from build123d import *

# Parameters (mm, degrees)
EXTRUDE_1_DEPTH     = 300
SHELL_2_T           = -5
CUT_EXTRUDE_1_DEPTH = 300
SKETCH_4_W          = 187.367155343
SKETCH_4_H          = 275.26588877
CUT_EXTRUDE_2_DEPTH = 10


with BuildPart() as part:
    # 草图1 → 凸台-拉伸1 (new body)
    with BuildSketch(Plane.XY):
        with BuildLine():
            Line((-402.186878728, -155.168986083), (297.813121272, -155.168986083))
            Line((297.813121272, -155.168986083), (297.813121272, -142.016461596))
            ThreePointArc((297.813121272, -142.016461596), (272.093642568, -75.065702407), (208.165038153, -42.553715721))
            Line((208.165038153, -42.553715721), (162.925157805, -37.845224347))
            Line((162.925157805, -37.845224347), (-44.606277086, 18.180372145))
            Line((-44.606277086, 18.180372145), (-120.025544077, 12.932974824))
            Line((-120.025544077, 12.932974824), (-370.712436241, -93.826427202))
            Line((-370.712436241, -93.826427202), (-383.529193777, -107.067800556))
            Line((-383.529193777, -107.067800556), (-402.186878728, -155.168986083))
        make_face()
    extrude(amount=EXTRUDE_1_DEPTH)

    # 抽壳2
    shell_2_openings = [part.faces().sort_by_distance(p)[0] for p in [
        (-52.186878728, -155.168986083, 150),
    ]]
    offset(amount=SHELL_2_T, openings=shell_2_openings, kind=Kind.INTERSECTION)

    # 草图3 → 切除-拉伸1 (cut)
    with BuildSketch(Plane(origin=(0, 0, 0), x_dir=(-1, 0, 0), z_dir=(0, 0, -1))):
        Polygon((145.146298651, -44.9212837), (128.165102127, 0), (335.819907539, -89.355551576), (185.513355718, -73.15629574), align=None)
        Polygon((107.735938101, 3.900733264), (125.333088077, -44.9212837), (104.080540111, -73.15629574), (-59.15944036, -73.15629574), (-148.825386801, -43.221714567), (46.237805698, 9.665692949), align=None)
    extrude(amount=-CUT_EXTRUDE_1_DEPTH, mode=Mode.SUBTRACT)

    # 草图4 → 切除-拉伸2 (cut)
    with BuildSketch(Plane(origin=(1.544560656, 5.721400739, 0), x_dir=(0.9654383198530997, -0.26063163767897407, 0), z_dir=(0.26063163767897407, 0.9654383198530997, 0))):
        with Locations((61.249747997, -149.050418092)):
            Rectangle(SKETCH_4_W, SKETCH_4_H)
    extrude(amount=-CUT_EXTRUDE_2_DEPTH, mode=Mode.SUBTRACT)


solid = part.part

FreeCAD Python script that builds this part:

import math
import FreeCAD as App
import Part
import Sketcher
from FreeCAD import Vector
Q = App.Units.Quantity


def faces_at(feature, points):
    """Names of the faces that lie closest to the given points."""
    faces = feature.Shape.Faces
    near = lambda p: min(range(len(faces)), key=lambda i: faces[i].distToShape(Part.Vertex(*p))[0])
    return sorted({f"Face{near(p) + 1}" for p in points})

doc = App.newDocument("Part")
body = doc.addObject("PartDesign::Body", "Body")

sketch1 = body.newObject("Sketcher::SketchObject", "Sketch")
sketch1.AttachmentSupport = (doc.getObject("XY_Plane"), [""])
sketch1.MapMode = "FlatFace"
sketch1.addGeometry([
    Part.LineSegment(Vector(-402, -155, 0), Vector(298, -155, 0)),
    Part.LineSegment(Vector(298, -155, 0), Vector(298, -142, 0)),
    Part.ArcOfCircle(Part.Circle(Vector(198, -142, 0), Vector(0, 0, 1), 100), math.radians(0), math.radians(84)),
    Part.LineSegment(Vector(208, -43, 0), Vector(163, -38, 0)),
    Part.LineSegment(Vector(163, -38, 0), Vector(-45, 18, 0)),
    Part.LineSegment(Vector(-45, 18, 0), Vector(-120, 13, 0)),
    Part.LineSegment(Vector(-120, 13, 0), Vector(-371, -94, 0)),
    Part.LineSegment(Vector(-371, -94, 0), Vector(-384, -107, 0)),
    Part.LineSegment(Vector(-384, -107, 0), Vector(-402, -155, 0)),
], False)
sketch1.addConstraint([
    Sketcher.Constraint("Coincident", 0, 2, 1, 1),
    Sketcher.Constraint("Tangent", 1, 2, 2, 1),
    Sketcher.Constraint("Tangent", 2, 2, 3, 1),
    Sketcher.Constraint("Coincident", 3, 2, 4, 1),
    Sketcher.Constraint("Coincident", 4, 2, 5, 1),
    Sketcher.Constraint("Coincident", 5, 2, 6, 1),
    Sketcher.Constraint("Coincident", 6, 2, 7, 1),
    Sketcher.Constraint("Coincident", 7, 2, 8, 1),
    Sketcher.Constraint("Coincident", 8, 2, 0, 1),
    Sketcher.Constraint("Horizontal", 0),
    Sketcher.Constraint("Vertical", 1),
    Sketcher.Constraint("Radius", 2, 100.0),
    Sketcher.Constraint("DistanceX", 0, 1, 0, 2, 700.0),
    Sketcher.Constraint("Angle", 5, Q("-176.019983 deg")),
    Sketcher.Constraint("DistanceY", 7, 2, -1, 1, 107.067801),
    Sketcher.Constraint("DistanceX", 4, 2, 2, 3, 242.419398),
    Sketcher.Constraint("DistanceX", 5, 2, 3, 2, 282.950702),
    Sketcher.Constraint("DistanceY", 3, 2, 5, 2, 50.778199),
    Sketcher.Constraint("DistanceY", 6, 2, 4, 2, 112.006799),
    Sketcher.Constraint("DistanceY", 1, 1, 1, 2, 13.152524),
    Sketcher.Constraint("DistanceX", -1, 1, 2, 3, 197.813121),
    Sketcher.Constraint("DistanceY", 2, 3, -1, 1, 142.016462),
    Sketcher.Constraint("DistanceX", -1, 1, 2, 2, 208.165038),
    Sketcher.Constraint("DistanceX", 3, 2, 2, 2, 45.23988),
    Sketcher.Constraint("DistanceX", 6, 2, 4, 2, 326.106159),
    Sketcher.Constraint("DistanceX", 7, 2, 5, 2, 263.50365),
])
pad1 = body.newObject("PartDesign::Pad", "Pad")
pad1.Profile = sketch1
pad1.Length = 300
doc.recompute()

thickness = body.newObject("PartDesign::Thickness", "Thickness")
thickness.Base = (pad1, faces_at(pad1, [(-52.187, -155.169, 150)]))
thickness.Value = 5
thickness.Reversed = True
thickness.Join = "Intersection"

sketch2 = body.newObject("Sketcher::SketchObject", "Sketch001")
sketch2.AttachmentSupport = (doc.getObject("XY_Plane"), [""])
sketch2.MapMode = "FlatFace"
sketch2.addGeometry([
    Part.LineSegment(Vector(-128, 0, 0), Vector(-145, -45, 0)),
    Part.LineSegment(Vector(-145, -45, 0), Vector(-186, -73, 0)),
    Part.LineSegment(Vector(-186, -73, 0), Vector(-336, -89, 0)),
    Part.LineSegment(Vector(-336, -89, 0), Vector(-128, 0, 0)),
    Part.LineSegment(Vector(-125, -45, 0), Vector(-108, 4, 0)),
    Part.LineSegment(Vector(-108, 4, 0), Vector(-46, 10, 0)),
    Part.LineSegment(Vector(-46, 10, 0), Vector(149, -43, 0)),
    Part.LineSegment(Vector(149, -43, 0), Vector(59, -73, 0)),
    Part.LineSegment(Vector(59, -73, 0), Vector(-104, -73, 0)),
    Part.LineSegment(Vector(-104, -73, 0), Vector(-125, -45, 0)),
], False)
sketch2.addConstraint([
    Sketcher.Constraint("Coincident", 0, 2, 1, 1),
    Sketcher.Constraint("Coincident", 1, 2, 2, 1),
    Sketcher.Constraint("Coincident", 2, 2, 3, 1),
    Sketcher.Constraint("Coincident", 3, 2, 0, 1),
    Sketcher.Constraint("Coincident", 4, 2, 5, 1),
    Sketcher.Constraint("Coincident", 5, 2, 6, 1),
    Sketcher.Constraint("Coincident", 6, 2, 7, 1),
    Sketcher.Constraint("Coincident", 7, 2, 8, 1),
    Sketcher.Constraint("Coincident", 8, 2, 9, 1),
    Sketcher.Constraint("Coincident", 9, 2, 4, 1),
    Sketcher.Constraint("Horizontal", 8),
    Sketcher.Constraint("PointOnObject", 3, 2, -1),
    Sketcher.Constraint("Horizontal", 1, 2, 7, 2),
    Sketcher.Constraint("Horizontal", 0, 2, 9, 2),
    Sketcher.Constraint("Distance", 3, 226.064002),
    Sketcher.Constraint("Distance", 1, 49.261701),
    Sketcher.Constraint("DistanceX", 8, 2, 8, 1, 163.23998),
    Sketcher.Constraint("DistanceX", 0, 2, -1, 1, 145.146299),
    Sketcher.Constraint("DistanceX", 2, 2, 5, 2, 289.582102),
    Sketcher.Constraint("Distance", 5, 61.767751),
    Sketcher.Constraint("Distance", 7, 94.530742),
    Sketcher.Constraint("Distance", 9, 35.339591),
    Sketcher.Constraint("DistanceY", 2, 2, -1, 1, 89.355552),
    Sketcher.Constraint("DistanceX", 4, 2, -1, 1, 107.735938),
    Sketcher.Constraint("DistanceX", -1, 1, 7, 2, 59.15944),
    Sketcher.Constraint("DistanceX", 9, 2, -1, 1, 125.333088),
    Sketcher.Constraint("DistanceX", 2, 2, 1, 2, 150.306552),
    Sketcher.Constraint("DistanceY", 1, 2, 4, 2, 77.057029),
    Sketcher.Constraint("DistanceX", 3, 2, 6, 2, 276.990489),
    Sketcher.Constraint("Distance", 0, 48.023773),
])
pocket1 = body.newObject("PartDesign::Pocket", "Pocket")
pocket1.Profile = sketch2
pocket1.Length = 300
pocket1.Reversed = True

sketch3 = body.newObject("Sketcher::SketchObject", "Sketch002")
sketch3.Placement = App.Placement(Vector(1.544561, 5.721401, 0), App.Rotation(Vector(0.96543832, -0.260631638, 0), Vector(0, 0, -1), Vector(0.260631638, 0.96543832, 0), "ZXY"))
sketch3.addGeometry([
    Part.LineSegment(Vector(-32, -11, 0), Vector(-32, -287, 0)),
    Part.LineSegment(Vector(-32, -287, 0), Vector(155, -287, 0)),
    Part.LineSegment(Vector(155, -287, 0), Vector(155, -11, 0)),
    Part.LineSegment(Vector(155, -11, 0), Vector(-32, -11, 0)),
], False)
sketch3.addConstraint([
    Sketcher.Constraint("Coincident", 0, 2, 1, 1),
    Sketcher.Constraint("Coincident", 1, 2, 2, 1),
    Sketcher.Constraint("Coincident", 2, 2, 3, 1),
    Sketcher.Constraint("Coincident", 3, 2, 0, 1),
    Sketcher.Constraint("Vertical", 0),
    Sketcher.Constraint("Horizontal", 1),
    Sketcher.Constraint("Vertical", 2),
    Sketcher.Constraint("Horizontal", 3),
    Sketcher.Constraint("DistanceY", 0, 2, 0, 1, 275.265889),
    Sketcher.Constraint("DistanceX", 1, 1, 1, 2, 187.367155),
    Sketcher.Constraint("DistanceX", 0, 2, -1, 1, 32.43383),
    Sketcher.Constraint("DistanceY", 0, 2, -1, 1, 286.683363),
])
pocket2 = body.newObject("PartDesign::Pocket", "Pocket001")
pocket2.Profile = sketch3
pocket2.Length = 10

doc.recompute()
